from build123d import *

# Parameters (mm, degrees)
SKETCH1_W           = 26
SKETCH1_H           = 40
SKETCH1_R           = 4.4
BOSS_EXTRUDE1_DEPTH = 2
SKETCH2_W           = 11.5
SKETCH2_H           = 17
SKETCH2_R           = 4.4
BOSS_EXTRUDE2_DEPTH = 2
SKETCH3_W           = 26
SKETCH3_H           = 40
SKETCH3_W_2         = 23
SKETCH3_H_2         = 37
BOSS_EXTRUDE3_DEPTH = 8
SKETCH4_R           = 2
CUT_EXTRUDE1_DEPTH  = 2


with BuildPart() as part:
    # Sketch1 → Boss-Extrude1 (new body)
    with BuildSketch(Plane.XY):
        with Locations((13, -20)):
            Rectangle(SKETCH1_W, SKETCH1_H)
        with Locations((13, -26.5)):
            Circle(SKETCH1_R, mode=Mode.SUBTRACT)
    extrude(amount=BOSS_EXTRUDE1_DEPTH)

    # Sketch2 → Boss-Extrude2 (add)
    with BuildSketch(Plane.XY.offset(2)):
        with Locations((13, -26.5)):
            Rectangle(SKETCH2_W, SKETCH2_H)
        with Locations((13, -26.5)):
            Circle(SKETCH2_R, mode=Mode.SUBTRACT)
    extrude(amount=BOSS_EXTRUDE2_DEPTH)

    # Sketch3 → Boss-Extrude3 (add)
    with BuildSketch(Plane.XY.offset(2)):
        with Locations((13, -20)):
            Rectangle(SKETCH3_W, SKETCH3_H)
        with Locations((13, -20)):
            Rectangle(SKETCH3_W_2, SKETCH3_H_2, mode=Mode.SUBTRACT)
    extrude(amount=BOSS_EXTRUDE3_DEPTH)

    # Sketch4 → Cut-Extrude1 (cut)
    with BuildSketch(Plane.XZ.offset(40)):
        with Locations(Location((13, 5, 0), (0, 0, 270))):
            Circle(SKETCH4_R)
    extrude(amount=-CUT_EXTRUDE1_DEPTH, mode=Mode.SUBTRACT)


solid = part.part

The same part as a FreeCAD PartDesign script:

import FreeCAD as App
import Part
import Sketcher
Q = App.Units.Quantity

doc = App.newDocument("Part")
params = doc.addObject("Spreadsheet::Sheet", "Params")
for row, (alias, value) in enumerate([
    ("sketch1_diameter", "8.8 mm"),
    ("sketch1_width", "26 mm"),
    ("sketch1_height", "40 mm"),
    ("pad1_length", "2 mm"),
    ("sketch2_diameter", "8.8 mm"),
    ("sketch2_height", "17 mm"),
    ("sketch2_width", "11.5 mm"),
    ("pad2_length", "2 mm"),
    ("sketch3_width", "26 mm"),
    ("sketch3_width2", "23 mm"),
    ("sketch3_height", "40 mm"),
    ("sketch3_height2", "37 mm"),
    ("pad3_length", "8 mm"),
    ("sketch4_diameter", "4 mm"),
    ("pocket1_length", "2 mm"),
], start=1):
    params.set(f"A{row}", alias)
    params.set(f"B{row}", "=" + value)
    params.setAlias(f"B{row}", alias)

body = doc.addObject("PartDesign::Body", "Body")

sketch1 = body.newObject("Sketcher::SketchObject", "Sketch")
sketch1.AttachmentSupport = (doc.getObject("XY_Plane"), [""])
sketch1.MapMode = "FlatFace"
sketch1.addGeometry(Part.LineSegment(App.Vector(0, 0, 0), App.Vector(0, -40, 0)), False)
sketch1.addGeometry(Part.LineSegment(App.Vector(0, -40, 0), App.Vector(26, -40, 0)), False)
sketch1.addGeometry(Part.LineSegment(App.Vector(26, -40, 0), App.Vector(26, 0, 0)), False)
sketch1.addGeometry(Part.LineSegment(App.Vector(26, 0, 0), App.Vector(0, 0, 0)), False)
sketch1.addGeometry(Part.Circle(App.Vector(13, -26.5, 0), App.Vector(0, 0, 1), 4.4), False)
sketch1.addConstraint(Sketcher.Constraint("Coincident", 0, 2, 1, 1))
sketch1.addConstraint(Sketcher.Constraint("Coincident", 1, 2, 2, 1))
sketch1.addConstraint(Sketcher.Constraint("Coincident", 2, 2, 3, 1))
sketch1.addConstraint(Sketcher.Constraint("Coincident", 3, 2, 0, 1))
sketch1.addConstraint(Sketcher.Constraint("Vertical", 0))
sketch1.addConstraint(Sketcher.Constraint("Horizontal", 1))
sketch1.addConstraint(Sketcher.Constraint("Vertical", 2))
sketch1.addConstraint(Sketcher.Constraint("Horizontal", 3))
sketch1.addConstraint(Sketcher.Constraint("Coincident", 3, 2, -1, 1))
sketch1.addConstraint(Sketcher.Constraint("Diameter", 4, Q("8.8 mm")))
sketch1.addConstraint(Sketcher.Constraint("DistanceX", 1, 1, 1, 2, Q("26 mm")))
sketch1.addConstraint(Sketcher.Constraint("DistanceY", 0, 2, 0, 1, Q("40 mm")))
sketch1.addConstraint(Sketcher.Constraint("DistanceX", -1, 1, 4, 3, Q("13 mm")))
sketch1.addConstraint(Sketcher.Constraint("DistanceY", 4, 3, -1, 1, Q("26.5 mm")))
sketch1.setExpression("Constraints[9]", "Params.sketch1_diameter")
sketch1.setExpression("Constraints[10]", "Params.sketch1_width")
sketch1.setExpression("Constraints[11]", "Params.sketch1_height")
pad1 = body.newObject("PartDesign::Pad", "Pad")
pad1.Profile = sketch1
pad1.setExpression("Length", "Params.pad1_length")

sketch2 = body.newObject("Sketcher::SketchObject", "Sketch001")
sketch2.AttachmentSupport = (doc.getObject("XY_Plane"), [""])
sketch2.MapMode = "FlatFace"
sketch2.AttachmentOffset = App.Placement(App.Vector(0, 0, 2), App.Rotation())
sketch2.addGeometry(Part.LineSegment(App.Vector(7.2, -18, 0), App.Vector(7.2, -35, 0)), False)
sketch2.addGeometry(Part.LineSegment(App.Vector(7.2, -35, 0), App.Vector(18.8, -35, 0)), False)
sketch2.addGeometry(Part.LineSegment(App.Vector(18.8, -35, 0), App.Vector(18.8, -18, 0)), False)
sketch2.addGeometry(Part.LineSegment(App.Vector(18.8, -18, 0), App.Vector(7.2, -18, 0)), False)
sketch2.addGeometry(Part.Circle(App.Vector(13, -26.5, 0), App.Vector(0, 0, 1), 4.4), False)
sketch2.addConstraint(Sketcher.Constraint("Coincident", 0, 2, 1, 1))
sketch2.addConstraint(Sketcher.Constraint("Coincident", 1, 2, 2, 1))
sketch2.addConstraint(Sketcher.Constraint("Coincident", 2, 2, 3, 1))
sketch2.addConstraint(Sketcher.Constraint("Coincident", 3, 2, 0, 1))
sketch2.addConstraint(Sketcher.Constraint("Vertical", 0))
sketch2.addConstraint(Sketcher.Constraint("Horizontal", 1))
sketch2.addConstraint(Sketcher.Constraint("Vertical", 2))
sketch2.addConstraint(Sketcher.Constraint("Horizontal", 3))
sketch2.addConstraint(Sketcher.Constraint("Diameter", 4, Q("8.8 mm")))
sketch2.addConstraint(Sketcher.Constraint("DistanceY", 0, 2, 0, 1, Q("17 mm")))
sketch2.addConstraint(Sketcher.Constraint("DistanceX", 1, 1, 1, 2, Q("11.5 mm")))
sketch2.addConstraint(Sketcher.Constraint("DistanceX", -1, 1, 4, 3, Q("13 mm")))
sketch2.addConstraint(Sketcher.Constraint("DistanceY", 0, 2, -1, 1, Q("35 mm")))
sketch2.addConstraint(Sketcher.Constraint("DistanceY", 4, 3, -1, 1, Q("26.5 mm")))
sketch2.addConstraint(Sketcher.Constraint("DistanceX", -1, 1, 0, 2, Q("7.25 mm")))
sketch2.setExpression("Constraints[8]", "Params.sketch2_diameter")
sketch2.setExpression("Constraints[9]", "Params.sketch2_height")
sketch2.setExpression("Constraints[10]", "Params.sketch2_width")
pad2 = body.newObject("PartDesign::Pad", "Pad001")
pad2.Profile = sketch2
pad2.setExpression("Length", "Params.pad2_length")

sketch3 = body.newObject("Sketcher::SketchObject", "Sketch002")
sketch3.AttachmentSupport = (doc.getObject("XY_Plane"), [""])
sketch3.MapMode = "FlatFace"
sketch3.AttachmentOffset = App.Placement(App.Vector(0, 0, 2), App.Rotation())
sketch3.addGeometry(Part.LineSegment(App.Vector(0, 0, 0), App.Vector(0, -40, 0)), False)
sketch3.addGeometry(Part.LineSegment(App.Vector(0, -40, 0), App.Vector(26, -40, 0)), False)
sketch3.addGeometry(Part.LineSegment(App.Vector(26, -40, 0), App.Vector(26, 0, 0)), False)
sketch3.addGeometry(Part.LineSegment(App.Vector(26, 0, 0), App.Vector(0, 0, 0)), False)
sketch3.addGeometry(Part.LineSegment(App.Vector(24, -38, 0), App.Vector(2, -38, 0)), False)
sketch3.addGeometry(Part.LineSegment(App.Vector(2, -38, 0), App.Vector(2, -2, 0)), False)
sketch3.addGeometry(Part.LineSegment(App.Vector(2, -2, 0), App.Vector(24, -2, 0)), False)
sketch3.addGeometry(Part.LineSegment(App.Vector(24, -2, 0), App.Vector(24, -38, 0)), False)
sketch3.addConstraint(Sketcher.Constraint("Coincident", 0, 2, 1, 1))
sketch3.addConstraint(Sketcher.Constraint("Coincident", 1, 2, 2, 1))
sketch3.addConstraint(Sketcher.Constraint("Coincident", 2, 2, 3, 1))
sketch3.addConstraint(Sketcher.Constraint("Coincident", 3, 2, 0, 1))
sketch3.addConstraint(Sketcher.Constraint("Coincident", 4, 2, 5, 1))
sketch3.addConstraint(Sketcher.Constraint("Coincident", 5, 2, 6, 1))
sketch3.addConstraint(Sketcher.Constraint("Coincident", 6, 2, 7, 1))
sketch3.addConstraint(Sketcher.Constraint("Coincident", 7, 2, 4, 1))
sketch3.addConstraint(Sketcher.Constraint("Vertical", 0))
sketch3.addConstraint(Sketcher.Constraint("Horizontal", 1))
sketch3.addConstraint(Sketcher.Constraint("Vertical", 2))
sketch3.addConstraint(Sketcher.Constraint("Horizontal", 3))
sketch3.addConstraint(Sketcher.Constraint("Horizontal", 4))
sketch3.addConstraint(Sketcher.Constraint("Vertical", 5))
sketch3.addConstraint(Sketcher.Constraint("Horizontal", 6))
sketch3.addConstraint(Sketcher.Constraint("Vertical", 7))
sketch3.addConstraint(Sketcher.Constraint("Coincident", 3, 2, -1, 1))
sketch3.addConstraint(Sketcher.Constraint("DistanceX", 1, 1, 1, 2, Q("26 mm")))
sketch3.addConstraint(Sketcher.Constraint("DistanceX", 4, 2, 4, 1, Q("23 mm")))
sketch3.addConstraint(Sketcher.Constraint("DistanceY", 0, 2, 0, 1, Q("40 mm")))
sketch3.addConstraint(Sketcher.Constraint("DistanceY", 5, 1, 5, 2, Q("37 mm")))
sketch3.addConstraint(Sketcher.Constraint("DistanceX", -1, 1, 4, 2, Q("1.5 mm")))
sketch3.addConstraint(Sketcher.Constraint("DistanceY", 4, 2, -1, 1, Q("38.5 mm")))
sketch3.setExpression("Constraints[17]", "Params.sketch3_width")
sketch3.setExpression("Constraints[18]", "Params.sketch3_width2")
sketch3.setExpression("Constraints[19]", "Params.sketch3_height")
sketch3.setExpression("Constraints[20]", "Params.sketch3_height2")
pad3 = body.newObject("PartDesign::Pad", "Pad002")
pad3.Profile = sketch3
pad3.setExpression("Length", "Params.pad3_length")

sketch4 = body.newObject("Sketcher::SketchObject", "Sketch003")
sketch4.AttachmentSupport = (doc.getObject("XZ_Plane"), [""])
sketch4.MapMode = "FlatFace"
sketch4.AttachmentOffset = App.Placement(App.Vector(0, 0, 40), App.Rotation())
sketch4.addGeometry(Part.Circle(App.Vector(13, 5, 0), App.Vector(0, 0, 1), 2), False)
sketch4.addConstraint(Sketcher.Constraint("Diameter", 0, Q("4 mm")))
sketch4.addConstraint(Sketcher.Constraint("DistanceX", -1, 1, 0, 3, Q("13 mm")))
sketch4.addConstraint(Sketcher.Constraint("DistanceY", -1, 1, 0, 3, Q("5 mm")))
sketch4.setExpression("Constraints[0]", "Params.sketch4_diameter")
pocket1 = body.newObject("PartDesign::Pocket", "Pocket")
pocket1.Profile = sketch4
pocket1.setExpression("Length", "Params.pocket1_length")

doc.recompute()
